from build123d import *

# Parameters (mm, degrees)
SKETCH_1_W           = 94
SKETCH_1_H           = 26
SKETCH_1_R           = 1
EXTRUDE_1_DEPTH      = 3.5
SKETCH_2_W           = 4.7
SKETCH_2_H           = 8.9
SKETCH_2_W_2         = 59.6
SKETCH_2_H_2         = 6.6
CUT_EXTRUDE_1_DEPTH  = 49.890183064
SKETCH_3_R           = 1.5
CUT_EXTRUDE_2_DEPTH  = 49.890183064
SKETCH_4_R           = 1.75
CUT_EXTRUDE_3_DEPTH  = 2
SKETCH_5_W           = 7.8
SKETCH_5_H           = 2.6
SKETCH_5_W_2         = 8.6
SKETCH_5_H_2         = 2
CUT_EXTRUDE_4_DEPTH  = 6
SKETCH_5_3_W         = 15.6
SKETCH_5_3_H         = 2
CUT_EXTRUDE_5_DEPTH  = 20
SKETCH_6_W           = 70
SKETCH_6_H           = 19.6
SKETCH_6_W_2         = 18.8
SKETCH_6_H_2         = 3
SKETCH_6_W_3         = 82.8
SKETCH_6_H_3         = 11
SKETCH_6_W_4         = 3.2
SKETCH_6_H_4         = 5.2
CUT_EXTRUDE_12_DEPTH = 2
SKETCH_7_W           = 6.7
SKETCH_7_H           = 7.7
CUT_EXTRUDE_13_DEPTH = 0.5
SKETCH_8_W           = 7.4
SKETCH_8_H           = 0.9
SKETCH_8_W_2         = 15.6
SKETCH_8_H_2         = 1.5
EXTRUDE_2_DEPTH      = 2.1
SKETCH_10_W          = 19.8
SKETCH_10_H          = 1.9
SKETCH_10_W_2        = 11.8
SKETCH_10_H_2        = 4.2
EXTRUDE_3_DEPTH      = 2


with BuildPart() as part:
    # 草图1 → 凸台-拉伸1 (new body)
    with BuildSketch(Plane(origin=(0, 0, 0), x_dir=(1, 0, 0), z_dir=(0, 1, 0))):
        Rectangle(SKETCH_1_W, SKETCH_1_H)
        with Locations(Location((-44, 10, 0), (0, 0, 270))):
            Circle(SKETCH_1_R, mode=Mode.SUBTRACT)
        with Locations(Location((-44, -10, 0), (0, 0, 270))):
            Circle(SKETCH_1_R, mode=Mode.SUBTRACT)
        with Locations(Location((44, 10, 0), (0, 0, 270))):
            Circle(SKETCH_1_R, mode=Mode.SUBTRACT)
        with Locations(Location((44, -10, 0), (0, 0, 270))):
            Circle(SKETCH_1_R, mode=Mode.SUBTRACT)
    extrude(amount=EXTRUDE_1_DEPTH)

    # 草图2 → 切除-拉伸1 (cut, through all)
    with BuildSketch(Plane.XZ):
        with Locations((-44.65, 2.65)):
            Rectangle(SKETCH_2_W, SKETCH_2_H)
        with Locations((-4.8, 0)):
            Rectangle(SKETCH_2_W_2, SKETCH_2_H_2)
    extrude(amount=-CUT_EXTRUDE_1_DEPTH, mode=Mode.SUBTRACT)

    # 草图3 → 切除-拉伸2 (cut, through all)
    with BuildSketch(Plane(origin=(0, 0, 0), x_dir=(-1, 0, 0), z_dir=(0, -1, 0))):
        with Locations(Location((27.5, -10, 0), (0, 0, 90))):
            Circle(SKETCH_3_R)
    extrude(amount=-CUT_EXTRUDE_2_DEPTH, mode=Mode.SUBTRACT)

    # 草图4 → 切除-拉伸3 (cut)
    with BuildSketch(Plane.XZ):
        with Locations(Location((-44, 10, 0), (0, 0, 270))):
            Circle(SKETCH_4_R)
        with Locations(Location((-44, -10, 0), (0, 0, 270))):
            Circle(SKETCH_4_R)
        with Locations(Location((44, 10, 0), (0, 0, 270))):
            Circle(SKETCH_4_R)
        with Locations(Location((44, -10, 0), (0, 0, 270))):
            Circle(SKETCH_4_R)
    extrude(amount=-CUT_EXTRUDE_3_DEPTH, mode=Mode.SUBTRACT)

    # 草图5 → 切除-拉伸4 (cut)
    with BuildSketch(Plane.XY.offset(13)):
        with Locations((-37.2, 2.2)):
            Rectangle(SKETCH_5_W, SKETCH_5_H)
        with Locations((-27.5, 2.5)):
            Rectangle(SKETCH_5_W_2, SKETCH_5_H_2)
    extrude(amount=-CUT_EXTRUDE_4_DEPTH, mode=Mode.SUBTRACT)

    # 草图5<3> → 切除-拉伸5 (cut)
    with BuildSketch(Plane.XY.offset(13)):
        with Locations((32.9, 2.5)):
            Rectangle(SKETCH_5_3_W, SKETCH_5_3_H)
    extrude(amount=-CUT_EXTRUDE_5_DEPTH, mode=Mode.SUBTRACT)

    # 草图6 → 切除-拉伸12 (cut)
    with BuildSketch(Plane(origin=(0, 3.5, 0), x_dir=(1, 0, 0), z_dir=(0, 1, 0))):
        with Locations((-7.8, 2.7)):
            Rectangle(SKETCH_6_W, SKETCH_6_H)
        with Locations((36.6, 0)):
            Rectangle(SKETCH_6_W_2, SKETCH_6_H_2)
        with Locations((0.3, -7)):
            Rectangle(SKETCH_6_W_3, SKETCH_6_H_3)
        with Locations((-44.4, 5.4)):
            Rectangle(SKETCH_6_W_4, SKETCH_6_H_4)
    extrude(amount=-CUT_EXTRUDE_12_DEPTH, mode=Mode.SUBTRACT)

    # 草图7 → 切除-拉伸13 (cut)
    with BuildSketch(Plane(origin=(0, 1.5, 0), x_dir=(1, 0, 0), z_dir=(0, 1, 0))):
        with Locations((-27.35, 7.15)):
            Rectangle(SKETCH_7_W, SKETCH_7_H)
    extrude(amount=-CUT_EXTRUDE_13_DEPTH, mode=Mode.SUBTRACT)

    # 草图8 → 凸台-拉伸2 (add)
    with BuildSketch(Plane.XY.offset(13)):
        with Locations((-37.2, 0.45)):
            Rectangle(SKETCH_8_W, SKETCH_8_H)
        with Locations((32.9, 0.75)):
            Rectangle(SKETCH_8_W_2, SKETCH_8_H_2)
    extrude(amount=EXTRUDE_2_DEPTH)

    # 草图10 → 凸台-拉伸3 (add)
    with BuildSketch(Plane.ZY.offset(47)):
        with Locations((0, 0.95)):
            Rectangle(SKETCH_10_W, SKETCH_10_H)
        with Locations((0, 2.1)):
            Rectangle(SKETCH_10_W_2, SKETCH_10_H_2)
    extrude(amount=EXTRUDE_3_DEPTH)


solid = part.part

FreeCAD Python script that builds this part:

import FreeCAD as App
import Part
import Sketcher

V = App.Vector


def add_polygon(sketch, points):
    """Adds a closed chain of lines whose ends are joined by coincident constraints."""
    first, n = sketch.GeometryCount, len(points)
    for a, b in zip(points, points[1:] + points[:1]):
        sketch.addGeometry(Part.LineSegment(App.Vector(*a, 0), App.Vector(*b, 0)), False)
    for i in range(n):
        sketch.addConstraint(Sketcher.Constraint("Coincident", first + i, 2, first + (i + 1) % n, 1))

doc = App.newDocument("Part")
body = doc.addObject("PartDesign::Body", "Body")

sketch1 = body.newObject("Sketcher::SketchObject", "Sketch")
sketch1.AttachmentSupport = (doc.getObject("XZ_Plane"), [""])
sketch1.MapMode = "FlatFace"
add_polygon(sketch1, [(-47, -13), (-47, 13), (47, 13), (47, -13)])
sketch1.addGeometry(Part.Circle(V(-44, 10, 0), V(0, 0, 1), 1), False)
sketch1.addGeometry(Part.Circle(V(44, 10, 0), V(0, 0, 1), 1), False)
sketch1.addGeometry(Part.Circle(V(-44, -10, 0), V(0, 0, 1), 1), False)
sketch1.addGeometry(Part.Circle(V(44, -10, 0), V(0, 0, 1), 1), False)
sketch1.addConstraint(Sketcher.Constraint("Vertical", 0))
sketch1.addConstraint(Sketcher.Constraint("Horizontal", 1))
sketch1.addConstraint(Sketcher.Constraint("Vertical", 2))
sketch1.addConstraint(Sketcher.Constraint("Horizontal", 3))
sketch1.addConstraint(Sketcher.Constraint("Equal", 4, 5))
sketch1.addConstraint(Sketcher.Constraint("Equal", 5, 6))
sketch1.addConstraint(Sketcher.Constraint("Equal", 6, 7))
sketch1.addConstraint(Sketcher.Constraint("Symmetric", 5, 3, 6, 3, -1, 1))
sketch1.addConstraint(Sketcher.Constraint("Symmetric", 4, 3, 7, 3, -1, 1))
sketch1.addConstraint(Sketcher.Constraint("Symmetric", 0, 2, 2, 2, -1, 1))
sketch1.addConstraint(Sketcher.Constraint("Symmetric", 4, 3, 5, 3, -2))
sketch1.addConstraint(Sketcher.Constraint("Diameter", 4, 2.0))
sketch1.addConstraint(Sketcher.Constraint("DistanceX", 1, 1, 1, 2, 94.0))
sketch1.addConstraint(Sketcher.Constraint("DistanceY", 0, 1, 0, 2, 26.0))
sketch1.addConstraint(Sketcher.Constraint("DistanceX", 4, 3, -1, 1, 44.0))
sketch1.addConstraint(Sketcher.Constraint("DistanceY", -1, 1, 4, 3, 10.0))
pad1 = body.newObject("PartDesign::Pad", "Pad")
pad1.Profile = sketch1
pad1.Length = 3.5
pad1.Reversed = True

sketch2 = body.newObject("Sketcher::SketchObject", "Sketch001")
sketch2.AttachmentSupport = (doc.getObject("XZ_Plane"), [""])
sketch2.MapMode = "FlatFace"
add_polygon(sketch2, [(-47, 7.1), (-47, -1.8), (-42.3, -1.8), (-42.3, 7.1)])
add_polygon(sketch2, [(-34.6, 3.3), (-34.6, -3.3), (25, -3.3), (25, 3.3)])
sketch2.addConstraint(Sketcher.Constraint("Vertical", 0))
sketch2.addConstraint(Sketcher.Constraint("Horizontal", 1))
sketch2.addConstraint(Sketcher.Constraint("Vertical", 2))
sketch2.addConstraint(Sketcher.Constraint("Horizontal", 3))
sketch2.addConstraint(Sketcher.Constraint("Vertical", 4))
sketch2.addConstraint(Sketcher.Constraint("Horizontal", 5))
sketch2.addConstraint(Sketcher.Constraint("Vertical", 6))
sketch2.addConstraint(Sketcher.Constraint("Horizontal", 7))
sketch2.addConstraint(Sketcher.Constraint("DistanceX", 1, 1, 1, 2, 4.7))
sketch2.addConstraint(Sketcher.Constraint("DistanceX", 5, 1, 5, 2, 59.6))
sketch2.addConstraint(Sketcher.Constraint("DistanceY", 0, 2, 0, 1, 8.9))
sketch2.addConstraint(Sketcher.Constraint("DistanceY", 4, 2, 4, 1, 6.6))
sketch2.addConstraint(Sketcher.Constraint("DistanceX", 0, 2, -1, 1, 47.0))
sketch2.addConstraint(Sketcher.Constraint("DistanceX", -1, 1, 5, 2, 25.0))
sketch2.addConstraint(Sketcher.Constraint("DistanceY", 0, 2, -1, 1, 1.8))
sketch2.addConstraint(Sketcher.Constraint("DistanceY", 4, 2, -1, 1, 3.3))
pocket1 = body.newObject("PartDesign::Pocket", "Pocket")
pocket1.Profile = sketch2
pocket1.Type = "ThroughAll"

sketch3 = body.newObject("Sketcher::SketchObject", "Sketch002")
sketch3.AttachmentSupport = (doc.getObject("XZ_Plane"), [""])
sketch3.MapMode = "FlatFace"
sketch3.addGeometry(Part.Circle(V(-27.5, 10, 0), V(0, 0, 1), 1.5), False)
sketch3.addConstraint(Sketcher.Constraint("Diameter", 0, 3.0))
sketch3.addConstraint(Sketcher.Constraint("DistanceY", -1, 1, 0, 3, 10.0))
sketch3.addConstraint(Sketcher.Constraint("DistanceX", 0, 3, -1, 1, 27.5))
pocket2 = body.newObject("PartDesign::Pocket", "Pocket001")
pocket2.Profile = sketch3
pocket2.Type = "ThroughAll"

sketch4 = body.newObject("Sketcher::SketchObject", "Sketch003")
sketch4.AttachmentSupport = (doc.getObject("XZ_Plane"), [""])
sketch4.MapMode = "FlatFace"
sketch4.addGeometry(Part.Circle(V(-44, 10, 0), V(0, 0, 1), 1.8), False)
sketch4.addGeometry(Part.Circle(V(-44, -10, 0), V(0, 0, 1), 1.8), False)
sketch4.addGeometry(Part.Circle(V(44, 10, 0), V(0, 0, 1), 1.8), False)
sketch4.addGeometry(Part.Circle(V(44, -10, 0), V(0, 0, 1), 1.8), False)
sketch4.addConstraint(Sketcher.Constraint("Equal", 0, 1))
sketch4.addConstraint(Sketcher.Constraint("Equal", 1, 2))
sketch4.addConstraint(Sketcher.Constraint("Equal", 2, 3))
sketch4.addConstraint(Sketcher.Constraint("Symmetric", 1, 3, 2, 3, -1, 1))
sketch4.addConstraint(Sketcher.Constraint("Symmetric", 0, 3, 3, 3, -1, 1))
sketch4.addConstraint(Sketcher.Constraint("Symmetric", 0, 3, 2, 3, -2))
sketch4.addConstraint(Sketcher.Constraint("Diameter", 0, 3.5))
sketch4.addConstraint(Sketcher.Constraint("DistanceX", 0, 3, -1, 1, 44.0))
sketch4.addConstraint(Sketcher.Constraint("DistanceY", -1, 1, 0, 3, 10.0))
pocket3 = body.newObject("PartDesign::Pocket", "Pocket002")
pocket3.Profile = sketch4
pocket3.Length = 2

sketch5 = body.newObject("Sketcher::SketchObject", "Sketch004")
sketch5.AttachmentSupport = (doc.getObject("XY_Plane"), [""])
sketch5.MapMode = "FlatFace"
sketch5.AttachmentOffset = App.Placement(V(0, 0, 13), App.Rotation())
add_polygon(sketch5, [(-41.1, 3.5), (-41.1, 0.9), (-33.3, 0.9), (-33.3, 3.5)])
add_polygon(sketch5, [(-31.8, 3.5), (-31.8, 1.5), (-23.2, 1.5), (-23.2, 3.5)])
sketch5.addConstraint(Sketcher.Constraint("Vertical", 0))
sketch5.addConstraint(Sketcher.Constraint("Horizontal", 1))
sketch5.addConstraint(Sketcher.Constraint("Vertical", 2))
sketch5.addConstraint(Sketcher.Constraint("Horizontal", 3))
sketch5.addConstraint(Sketcher.Constraint("Vertical", 4))
sketch5.addConstraint(Sketcher.Constraint("Horizontal", 5))
sketch5.addConstraint(Sketcher.Constraint("Vertical", 6))
sketch5.addConstraint(Sketcher.Constraint("Horizontal", 7))
sketch5.addConstraint(Sketcher.Constraint("Horizontal", 3, 2, 6, 2))
sketch5.addConstraint(Sketcher.Constraint("DistanceY", 4, 2, 4, 1, 2.0))
sketch5.addConstraint(Sketcher.Constraint("DistanceX", 1, 1, 1, 2, 7.8))
sketch5.addConstraint(Sketcher.Constraint("DistanceX", 5, 1, 5, 2, 8.6))
sketch5.addConstraint(Sketcher.Constraint("DistanceY", 0, 2, 0, 1, 2.6))
sketch5.addConstraint(Sketcher.Constraint("DistanceX", 0, 2, -1, 1, 41.1))
sketch5.addConstraint(Sketcher.Constraint("DistanceY", -1, 1, 0, 2, 0.9))
sketch5.addConstraint(Sketcher.Constraint("DistanceX", 4, 2, -1, 1, 31.8))
pocket4 = body.newObject("PartDesign::Pocket", "Pocket003")
pocket4.Profile = sketch5
pocket4.Length = 6

sketch6 = body.newObject("Sketcher::SketchObject", "Sketch005")
sketch6.AttachmentSupport = (doc.getObject("XY_Plane"), [""])
sketch6.MapMode = "FlatFace"
sketch6.AttachmentOffset = App.Placement(V(0, 0, 13), App.Rotation())
add_polygon(sketch6, [(25.1, 3.5), (25.1, 1.5), (40.7, 1.5), (40.7, 3.5)])
sketch6.addConstraint(Sketcher.Constraint("Vertical", 0))
sketch6.addConstraint(Sketcher.Constraint("Horizontal", 1))
sketch6.addConstraint(Sketcher.Constraint("Vertical", 2))
sketch6.addConstraint(Sketcher.Constraint("Horizontal", 3))
sketch6.addConstraint(Sketcher.Constraint("DistanceY", 0, 2, 0, 1, 2.0))
sketch6.addConstraint(Sketcher.Constraint("DistanceX", 1, 1, 1, 2, 15.6))
sketch6.addConstraint(Sketcher.Constraint("DistanceX", -1, 1, 0, 2, 25.1))
sketch6.addConstraint(Sketcher.Constraint("DistanceY", -1, 1, 0, 2, 1.5))
pocket5 = body.newObject("PartDesign::Pocket", "Pocket004")
pocket5.Profile = sketch6
pocket5.Length = 20

sketch7 = body.newObject("Sketcher::SketchObject", "Sketch006")
sketch7.AttachmentSupport = (doc.getObject("XZ_Plane"), [""])
sketch7.MapMode = "FlatFace"
sketch7.AttachmentOffset = App.Placement(V(0, 0, -3.5), App.Rotation())
add_polygon(sketch7, [(-42.8, -2.8), (-42.8, 7.1), (-41.1, 7.1), (-41.1, 12.5), (41.7, 12.5), (41.7, 1.5), (46, 1.5), (46, -1.5), (27.2, -1.5), (27.2, -12.5), (-42.8, -12.5), (-42.8, -8), (-46, -8), (-46, -2.8)])
sketch7.addConstraint(Sketcher.Constraint("Vertical", 0))
sketch7.addConstraint(Sketcher.Constraint("Horizontal", 1))
sketch7.addConstraint(Sketcher.Constraint("Vertical", 2))
sketch7.addConstraint(Sketcher.Constraint("Horizontal", 3))
sketch7.addConstraint(Sketcher.Constraint("Vertical", 4))
sketch7.addConstraint(Sketcher.Constraint("Horizontal", 5))
sketch7.addConstraint(Sketcher.Constraint("Vertical", 6))
sketch7.addConstraint(Sketcher.Constraint("Horizontal", 7))
sketch7.addConstraint(Sketcher.Constraint("Vertical", 8))
sketch7.addConstraint(Sketcher.Constraint("Horizontal", 9))
sketch7.addConstraint(Sketcher.Constraint("Vertical", 10))
sketch7.addConstraint(Sketcher.Constraint("Horizontal", 11))
sketch7.addConstraint(Sketcher.Constraint("Vertical", 12))
sketch7.addConstraint(Sketcher.Constraint("Horizontal", 13))
sketch7.addConstraint(Sketcher.Constraint("Vertical", 0, 2, 9, 2))
sketch7.addConstraint(Sketcher.Constraint("Equal", 4, 8))
sketch7.addConstraint(Sketcher.Constraint("DistanceX", 9, 2, 9, 1, 70.0))
sketch7.addConstraint(Sketcher.Constraint("DistanceY", 4, 2, 4, 1, 11.0))
sketch7.addConstraint(Sketcher.Constraint("DistanceY", 6, 2, 6, 1, 3.0))
sketch7.addConstraint(Sketcher.Constraint("DistanceX", 1, 1, 1, 2, 1.7))
sketch7.addConstraint(Sketcher.Constraint("DistanceX", 3, 1, 3, 2, 82.8))
sketch7.addConstraint(Sketcher.Constraint("DistanceX", 5, 1, 5, 2, 4.3))
sketch7.addConstraint(Sketcher.Constraint("DistanceX", 11, 2, 11, 1, 3.2))
sketch7.addConstraint(Sketcher.Constraint("DistanceY", 0, 1, 0, 2, 9.9))
sketch7.addConstraint(Sketcher.Constraint("DistanceY", 2, 1, 2, 2, 5.4))
sketch7.addConstraint(Sketcher.Constraint("DistanceY", 10, 1, 10, 2, 4.5))
sketch7.addConstraint(Sketcher.Constraint("DistanceX", -1, 1, 5, 2, 46.0))
sketch7.addConstraint(Sketcher.Constraint("DistanceY", 10, 2, -1, 1, 8.0))
pocket6 = body.newObject("PartDesign::Pocket", "Pocket005")
pocket6.Profile = sketch7
pocket6.Length = 2
pocket6.Reversed = True

sketch8 = body.newObject("Sketcher::SketchObject", "Sketch007")
sketch8.AttachmentSupport = (doc.getObject("XZ_Plane"), [""])
sketch8.MapMode = "FlatFace"
sketch8.AttachmentOffset = App.Placement(V(0, 0, -1.5), App.Rotation())
add_polygon(sketch8, [(-31, -11), (-31, -3), (-24, -3), (-24, -11)])
sketch8.addConstraint(Sketcher.Constraint("Vertical", 0))
sketch8.addConstraint(Sketcher.Constraint("Horizontal", 1))
sketch8.addConstraint(Sketcher.Constraint("Vertical", 2))
sketch8.addConstraint(Sketcher.Constraint("Horizontal", 3))
sketch8.addConstraint(Sketcher.Constraint("DistanceX", 1, 1, 1, 2, 6.7))
sketch8.addConstraint(Sketcher.Constraint("DistanceY", 0, 1, 0, 2, 7.7))
sketch8.addConstraint(Sketcher.Constraint("DistanceX", 1, 2, -1, 1, 24.0))
sketch8.addConstraint(Sketcher.Constraint("DistanceY", 2, 2, -1, 1, 11.0))
pocket7 = body.newObject("PartDesign::Pocket", "Pocket006")
pocket7.Profile = sketch8
pocket7.Length = 0.5
pocket7.Reversed = True

sketch9 = body.newObject("Sketcher::SketchObject", "Sketch008")
sketch9.AttachmentSupport = (doc.getObject("XY_Plane"), [""])
sketch9.MapMode = "FlatFace"
sketch9.AttachmentOffset = App.Placement(V(0, 0, 13), App.Rotation())
add_polygon(sketch9, [(-40.9, 0.9), (-40.9, 0), (-33.5, 0), (-33.5, 0.9)])
add_polygon(sketch9, [(25.1, 1.5), (25.1, 0), (40.7, 0), (40.7, 1.5)])
sketch9.addConstraint(Sketcher.Constraint("Vertical", 0))
sketch9.addConstraint(Sketcher.Constraint("Horizontal", 1))
sketch9.addConstraint(Sketcher.Constraint("Vertical", 2))
sketch9.addConstraint(Sketcher.Constraint("Horizontal", 3))
sketch9.addConstraint(Sketcher.Constraint("Vertical", 4))
sketch9.addConstraint(Sketcher.Constraint("Horizontal", 5))
sketch9.addConstraint(Sketcher.Constraint("Vertical", 6))
sketch9.addConstraint(Sketcher.Constraint("Horizontal", 7))
sketch9.addConstraint(Sketcher.Constraint("PointOnObject", 0, 2, -1))
sketch9.addConstraint(Sketcher.Constraint("PointOnObject", 4, 2, -1))
sketch9.addConstraint(Sketcher.Constraint("DistanceX", 1, 1, 1, 2, 7.4))
sketch9.addConstraint(Sketcher.Constraint("DistanceX", 5, 1, 5, 2, 15.6))
sketch9.addConstraint(Sketcher.Constraint("DistanceY", 0, 2, 0, 1, 0.9))
sketch9.addConstraint(Sketcher.Constraint("DistanceY", 4, 2, 4, 1, 1.5))
sketch9.addConstraint(Sketcher.Constraint("DistanceX", 0, 2, 4, 2, 66.0))
sketch9.addConstraint(Sketcher.Constraint("DistanceX", 0, 2, -1, 1, 40.9))
pad2 = body.newObject("PartDesign::Pad", "Pad001")
pad2.Profile = sketch9
pad2.Length = 2.1

sketch10 = body.newObject("Sketcher::SketchObject", "Sketch009")
sketch10.AttachmentSupport = (doc.getObject("YZ_Plane"), [""])
sketch10.MapMode = "FlatFace"
sketch10.AttachmentOffset = App.Placement(V(0, 0, -47), App.Rotation())
add_polygon(sketch10, [(1.9, -9.9), (0, -9.9), (0, 9.9), (1.9, 9.9), (1.9, 5.9), (4.2, 5.9), (4.2, -5.9), (1.9, -5.9)])
sketch10.addConstraint(Sketcher.Constraint("Horizontal", 0))
sketch10.addConstraint(Sketcher.Constraint("Vertical", 1))
sketch10.addConstraint(Sketcher.Constraint("Horizontal", 2))
sketch10.addConstraint(Sketcher.Constraint("Vertical", 3))
sketch10.addConstraint(Sketcher.Constraint("Horizontal", 4))
sketch10.addConstraint(Sketcher.Constraint("Vertical", 5))
sketch10.addConstraint(Sketcher.Constraint("Horizontal", 6))
sketch10.addConstraint(Sketcher.Constraint("Vertical", 7))
sketch10.addConstraint(Sketcher.Constraint("Symmetric", 0, 2, 1, 2, -1, 1))
sketch10.addConstraint(Sketcher.Constraint("Symmetric", 3, 2, 6, 2, -1))
sketch10.addConstraint(Sketcher.Constraint("DistanceY", 3, 2, 3, 1, 4.0))
sketch10.addConstraint(Sketcher.Constraint("DistanceX", 0, 2, 0, 1, 1.9))
sketch10.addConstraint(Sketcher.Constraint("DistanceX", 4, 1, 4, 2, 2.3))
sketch10.addConstraint(Sketcher.Constraint("DistanceY", 1, 1, 1, 2, 19.8))
pad3 = body.newObject("PartDesign::Pad", "Pad002")
pad3.Profile = sketch10
pad3.Length = 2
pad3.Reversed = True

doc.recompute()
